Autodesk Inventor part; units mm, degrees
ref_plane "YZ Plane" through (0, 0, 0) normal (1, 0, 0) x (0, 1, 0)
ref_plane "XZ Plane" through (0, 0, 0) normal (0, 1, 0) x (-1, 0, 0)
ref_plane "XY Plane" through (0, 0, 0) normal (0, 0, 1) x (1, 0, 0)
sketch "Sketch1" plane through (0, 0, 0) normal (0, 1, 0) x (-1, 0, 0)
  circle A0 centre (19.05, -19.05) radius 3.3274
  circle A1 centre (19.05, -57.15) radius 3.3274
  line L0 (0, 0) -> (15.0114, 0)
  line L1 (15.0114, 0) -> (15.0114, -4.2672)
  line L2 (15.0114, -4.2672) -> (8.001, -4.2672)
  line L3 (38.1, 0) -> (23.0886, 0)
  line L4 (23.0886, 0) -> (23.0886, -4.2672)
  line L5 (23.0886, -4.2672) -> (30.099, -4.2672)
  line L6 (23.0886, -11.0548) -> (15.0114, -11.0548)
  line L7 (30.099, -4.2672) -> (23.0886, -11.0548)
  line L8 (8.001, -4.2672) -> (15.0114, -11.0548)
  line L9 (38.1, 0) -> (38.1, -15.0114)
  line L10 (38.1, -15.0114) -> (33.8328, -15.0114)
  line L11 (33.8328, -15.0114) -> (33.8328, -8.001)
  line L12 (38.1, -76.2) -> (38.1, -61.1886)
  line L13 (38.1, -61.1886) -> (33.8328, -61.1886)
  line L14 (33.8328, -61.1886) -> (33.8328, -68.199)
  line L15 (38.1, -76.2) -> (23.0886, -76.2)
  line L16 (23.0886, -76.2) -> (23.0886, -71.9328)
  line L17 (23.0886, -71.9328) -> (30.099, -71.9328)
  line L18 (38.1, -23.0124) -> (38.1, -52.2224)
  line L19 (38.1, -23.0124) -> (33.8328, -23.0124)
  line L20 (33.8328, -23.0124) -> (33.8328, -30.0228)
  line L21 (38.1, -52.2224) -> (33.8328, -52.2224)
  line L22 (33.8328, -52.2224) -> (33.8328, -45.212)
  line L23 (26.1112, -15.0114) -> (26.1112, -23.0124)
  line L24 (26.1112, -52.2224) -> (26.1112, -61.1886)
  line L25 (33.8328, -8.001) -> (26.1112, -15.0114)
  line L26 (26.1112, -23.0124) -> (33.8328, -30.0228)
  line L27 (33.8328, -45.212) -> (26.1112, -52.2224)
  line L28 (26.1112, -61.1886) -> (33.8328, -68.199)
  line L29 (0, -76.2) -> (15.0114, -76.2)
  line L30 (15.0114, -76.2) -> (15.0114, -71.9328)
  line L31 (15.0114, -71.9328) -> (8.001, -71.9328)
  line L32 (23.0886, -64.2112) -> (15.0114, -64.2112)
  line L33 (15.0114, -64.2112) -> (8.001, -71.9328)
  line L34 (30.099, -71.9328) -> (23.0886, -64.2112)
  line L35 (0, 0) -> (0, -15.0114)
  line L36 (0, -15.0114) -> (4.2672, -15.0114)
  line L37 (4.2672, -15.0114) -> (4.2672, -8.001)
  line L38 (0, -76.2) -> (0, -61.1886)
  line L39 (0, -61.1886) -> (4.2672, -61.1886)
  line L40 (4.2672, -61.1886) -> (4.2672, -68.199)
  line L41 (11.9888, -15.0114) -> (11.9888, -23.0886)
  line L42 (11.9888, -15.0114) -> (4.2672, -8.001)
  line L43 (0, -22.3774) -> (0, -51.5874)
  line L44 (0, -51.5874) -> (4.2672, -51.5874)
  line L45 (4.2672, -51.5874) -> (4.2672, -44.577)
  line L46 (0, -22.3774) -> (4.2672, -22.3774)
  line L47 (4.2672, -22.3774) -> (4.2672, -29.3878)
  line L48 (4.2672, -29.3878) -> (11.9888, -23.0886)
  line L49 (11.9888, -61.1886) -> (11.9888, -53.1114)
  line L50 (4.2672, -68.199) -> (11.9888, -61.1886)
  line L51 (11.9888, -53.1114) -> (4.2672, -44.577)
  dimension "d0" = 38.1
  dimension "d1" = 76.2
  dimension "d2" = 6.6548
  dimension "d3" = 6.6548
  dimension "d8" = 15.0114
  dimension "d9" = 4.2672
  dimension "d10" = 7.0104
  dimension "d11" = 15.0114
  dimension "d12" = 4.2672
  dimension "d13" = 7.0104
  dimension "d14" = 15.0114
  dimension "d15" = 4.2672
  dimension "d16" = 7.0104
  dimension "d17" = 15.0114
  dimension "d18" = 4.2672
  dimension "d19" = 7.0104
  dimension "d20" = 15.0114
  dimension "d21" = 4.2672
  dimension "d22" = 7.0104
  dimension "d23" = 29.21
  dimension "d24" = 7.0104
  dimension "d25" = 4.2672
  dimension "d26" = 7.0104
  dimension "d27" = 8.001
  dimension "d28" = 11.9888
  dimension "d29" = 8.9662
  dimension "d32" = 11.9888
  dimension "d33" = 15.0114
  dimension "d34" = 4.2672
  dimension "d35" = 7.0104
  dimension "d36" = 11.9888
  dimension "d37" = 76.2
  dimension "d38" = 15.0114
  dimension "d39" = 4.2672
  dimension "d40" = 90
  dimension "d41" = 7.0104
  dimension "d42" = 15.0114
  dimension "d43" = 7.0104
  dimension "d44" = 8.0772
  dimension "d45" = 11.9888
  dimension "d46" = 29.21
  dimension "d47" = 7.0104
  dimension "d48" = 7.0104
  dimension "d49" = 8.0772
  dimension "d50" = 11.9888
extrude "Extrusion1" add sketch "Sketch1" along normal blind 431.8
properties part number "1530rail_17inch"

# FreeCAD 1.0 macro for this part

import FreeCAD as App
import Part
import Sketcher

V = App.Vector
Q = App.Units.Quantity

doc = App.newDocument("Part")
body = doc.addObject("PartDesign::Body", "Body")

sketch1 = body.newObject("Sketcher::SketchObject", "Sketch")
sketch1.AttachmentSupport = (doc.getObject("XZ_Plane"), [""])
sketch1.MapMode = "FlatFace"
sketch1.addGeometry(Part.LineSegment(V(-15.0114, 0, 0), V(0, 0, 0)), False)
sketch1.addGeometry(Part.LineSegment(V(0, 0, 0), V(0, -15.0114, 0)), False)
sketch1.addGeometry(Part.LineSegment(V(0, -15.0114, 0), V(-4.2672, -15.0114, 0)), False)
sketch1.addGeometry(Part.LineSegment(V(-4.2672, -15.0114, 0), V(-4.2672, -8.001, 0)), False)
sketch1.addGeometry(Part.LineSegment(V(-4.2672, -8.001, 0), V(-11.9888, -15.0114, 0)), False)
sketch1.addGeometry(Part.LineSegment(V(-11.9888, -15.0114, 0), V(-11.9888, -23.0886, 0)), False)
sketch1.addGeometry(Part.LineSegment(V(-11.9888, -23.0886, 0), V(-4.2672, -29.3878, 0)), False)
sketch1.addGeometry(Part.LineSegment(V(-4.2672, -29.3878, 0), V(-4.2672, -22.3774, 0)), False)
sketch1.addGeometry(Part.LineSegment(V(-4.2672, -22.3774, 0), V(0, -22.3774, 0)), False)
sketch1.addGeometry(Part.LineSegment(V(0, -22.3774, 0), V(0, -51.5874, 0)), False)
sketch1.addGeometry(Part.LineSegment(V(0, -51.5874, 0), V(-4.2672, -51.5874, 0)), False)
sketch1.addGeometry(Part.LineSegment(V(-4.2672, -51.5874, 0), V(-4.2672, -44.577, 0)), False)
sketch1.addGeometry(Part.LineSegment(V(-4.2672, -44.577, 0), V(-11.9888, -53.1114, 0)), False)
sketch1.addGeometry(Part.LineSegment(V(-11.9888, -53.1114, 0), V(-11.9888, -61.1886, 0)), False)
sketch1.addGeometry(Part.LineSegment(V(-11.9888, -61.1886, 0), V(-4.2672, -68.199, 0)), False)
sketch1.addGeometry(Part.LineSegment(V(-4.2672, -68.199, 0), V(-4.2672, -61.1886, 0)), False)
sketch1.addGeometry(Part.LineSegment(V(-4.2672, -61.1886, 0), V(0, -61.1886, 0)), False)
sketch1.addGeometry(Part.LineSegment(V(0, -61.1886, 0), V(0, -76.2, 0)), False)
sketch1.addGeometry(Part.LineSegment(V(0, -76.2, 0), V(-15.0114, -76.2, 0)), False)
sketch1.addGeometry(Part.LineSegment(V(-15.0114, -76.2, 0), V(-15.0114, -71.9328, 0)), False)
sketch1.addGeometry(Part.LineSegment(V(-15.0114, -71.9328, 0), V(-8.001, -71.9328, 0)), False)
sketch1.addGeometry(Part.LineSegment(V(-8.001, -71.9328, 0), V(-15.0114, -64.2112, 0)), False)
sketch1.addGeometry(Part.LineSegment(V(-15.0114, -64.2112, 0), V(-23.0886, -64.2112, 0)), False)
sketch1.addGeometry(Part.LineSegment(V(-23.0886, -64.2112, 0), V(-30.099, -71.9328, 0)), False)
sketch1.addGeometry(Part.LineSegment(V(-30.099, -71.9328, 0), V(-23.0886, -71.9328, 0)), False)
sketch1.addGeometry(Part.LineSegment(V(-23.0886, -71.9328, 0), V(-23.0886, -76.2, 0)), False)
sketch1.addGeometry(Part.LineSegment(V(-23.0886, -76.2, 0), V(-38.1, -76.2, 0)), False)
sketch1.addGeometry(Part.LineSegment(V(-38.1, -76.2, 0), V(-38.1, -61.1886, 0)), False)
sketch1.addGeometry(Part.LineSegment(V(-38.1, -61.1886, 0), V(-33.8328, -61.1886, 0)), False)
sketch1.addGeometry(Part.LineSegment(V(-33.8328, -61.1886, 0), V(-33.8328, -68.199, 0)), False)
sketch1.addGeometry(Part.LineSegment(V(-33.8328, -68.199, 0), V(-26.1112, -61.1886, 0)), False)
sketch1.addGeometry(Part.LineSegment(V(-26.1112, -61.1886, 0), V(-26.1112, -52.2224, 0)), False)
sketch1.addGeometry(Part.LineSegment(V(-26.1112, -52.2224, 0), V(-33.8328, -45.212, 0)), False)
sketch1.addGeometry(Part.LineSegment(V(-33.8328, -45.212, 0), V(-33.8328, -52.2224, 0)), False)
sketch1.addGeometry(Part.LineSegment(V(-33.8328, -52.2224, 0), V(-38.1, -52.2224, 0)), False)
sketch1.addGeometry(Part.LineSegment(V(-38.1, -52.2224, 0), V(-38.1, -23.0124, 0)), False)
sketch1.addGeometry(Part.LineSegment(V(-38.1, -23.0124, 0), V(-33.8328, -23.0124, 0)), False)
sketch1.addGeometry(Part.LineSegment(V(-33.8328, -23.0124, 0), V(-33.8328, -30.0228, 0)), False)
sketch1.addGeometry(Part.LineSegment(V(-33.8328, -30.0228, 0), V(-26.1112, -23.0124, 0)), False)
sketch1.addGeometry(Part.LineSegment(V(-26.1112, -23.0124, 0), V(-26.1112, -15.0114, 0)), False)
sketch1.addGeometry(Part.LineSegment(V(-26.1112, -15.0114, 0), V(-33.8328, -8.001, 0)), False)
sketch1.addGeometry(Part.LineSegment(V(-33.8328, -8.001, 0), V(-33.8328, -15.0114, 0)), False)
sketch1.addGeometry(Part.LineSegment(V(-33.8328, -15.0114, 0), V(-38.1, -15.0114, 0)), False)
sketch1.addGeometry(Part.LineSegment(V(-38.1, -15.0114, 0), V(-38.1, 0, 0)), False)
sketch1.addGeometry(Part.LineSegment(V(-38.1, 0, 0), V(-23.0886, 0, 0)), False)
sketch1.addGeometry(Part.LineSegment(V(-23.0886, 0, 0), V(-23.0886, -4.2672, 0)), False)
sketch1.addGeometry(Part.LineSegment(V(-23.0886, -4.2672, 0), V(-30.099, -4.2672, 0)), False)
sketch1.addGeometry(Part.LineSegment(V(-30.099, -4.2672, 0), V(-23.0886, -11.0548, 0)), False)
sketch1.addGeometry(Part.LineSegment(V(-23.0886, -11.0548, 0), V(-15.0114, -11.0548, 0)), False)
sketch1.addGeometry(Part.LineSegment(V(-15.0114, -11.0548, 0), V(-8.001, -4.2672, 0)), False)
sketch1.addGeometry(Part.LineSegment(V(-8.001, -4.2672, 0), V(-15.0114, -4.2672, 0)), False)
sketch1.addGeometry(Part.LineSegment(V(-15.0114, -4.2672, 0), V(-15.0114, 0, 0)), False)
sketch1.addGeometry(Part.Circle(V(-19.05, -57.15, 0), V(0, 0, 1), 3.3274), False)
sketch1.addGeometry(Part.Circle(V(-19.05, -19.05, 0), V(0, 0, 1), 3.3274), False)
sketch1.addConstraint(Sketcher.Constraint("Coincident", 0, 2, 1, 1))
sketch1.addConstraint(Sketcher.Constraint("Coincident", 1, 2, 2, 1))
sketch1.addConstraint(Sketcher.Constraint("Coincident", 2, 2, 3, 1))
sketch1.addConstraint(Sketcher.Constraint("Coincident", 3, 2, 4, 1))
sketch1.addConstraint(Sketcher.Constraint("Coincident", 4, 2, 5, 1))
sketch1.addConstraint(Sketcher.Constraint("Coincident", 5, 2, 6, 1))
sketch1.addConstraint(Sketcher.Constraint("Coincident", 6, 2, 7, 1))
sketch1.addConstraint(Sketcher.Constraint("Coincident", 7, 2, 8, 1))
sketch1.addConstraint(Sketcher.Constraint("Coincident", 8, 2, 9, 1))
sketch1.addConstraint(Sketcher.Constraint("Coincident", 9, 2, 10, 1))
sketch1.addConstraint(Sketcher.Constraint("Coincident", 10, 2, 11, 1))
sketch1.addConstraint(Sketcher.Constraint("Coincident", 11, 2, 12, 1))
sketch1.addConstraint(Sketcher.Constraint("Coincident", 12, 2, 13, 1))
sketch1.addConstraint(Sketcher.Constraint("Coincident", 13, 2, 14, 1))
sketch1.addConstraint(Sketcher.Constraint("Coincident", 14, 2, 15, 1))
sketch1.addConstraint(Sketcher.Constraint("Coincident", 15, 2, 16, 1))
sketch1.addConstraint(Sketcher.Constraint("Coincident", 16, 2, 17, 1))
sketch1.addConstraint(Sketcher.Constraint("Coincident", 17, 2, 18, 1))
sketch1.addConstraint(Sketcher.Constraint("Coincident", 18, 2, 19, 1))
sketch1.addConstraint(Sketcher.Constraint("Coincident", 19, 2, 20, 1))
sketch1.addConstraint(Sketcher.Constraint("Coincident", 20, 2, 21, 1))
sketch1.addConstraint(Sketcher.Constraint("Coincident", 21, 2, 22, 1))
sketch1.addConstraint(Sketcher.Constraint("Coincident", 22, 2, 23, 1))
sketch1.addConstraint(Sketcher.Constraint("Coincident", 23, 2, 24, 1))
sketch1.addConstraint(Sketcher.Constraint("Coincident", 24, 2, 25, 1))
sketch1.addConstraint(Sketcher.Constraint("Coincident", 25, 2, 26, 1))
sketch1.addConstraint(Sketcher.Constraint("Coincident", 26, 2, 27, 1))
sketch1.addConstraint(Sketcher.Constraint("Coincident", 27, 2, 28, 1))
sketch1.addConstraint(Sketcher.Constraint("Coincident", 28, 2, 29, 1))
sketch1.addConstraint(Sketcher.Constraint("Coincident", 29, 2, 30, 1))
sketch1.addConstraint(Sketcher.Constraint("Coincident", 30, 2, 31, 1))
sketch1.addConstraint(Sketcher.Constraint("Coincident", 31, 2, 32, 1))
sketch1.addConstraint(Sketcher.Constraint("Coincident", 32, 2, 33, 1))
sketch1.addConstraint(Sketcher.Constraint("Coincident", 33, 2, 34, 1))
sketch1.addConstraint(Sketcher.Constraint("Coincident", 34, 2, 35, 1))
sketch1.addConstraint(Sketcher.Constraint("Coincident", 35, 2, 36, 1))
sketch1.addConstraint(Sketcher.Constraint("Coincident", 36, 2, 37, 1))
sketch1.addConstraint(Sketcher.Constraint("Coincident", 37, 2, 38, 1))
sketch1.addConstraint(Sketcher.Constraint("Coincident", 38, 2, 39, 1))
sketch1.addConstraint(Sketcher.Constraint("Coincident", 39, 2, 40, 1))
sketch1.addConstraint(Sketcher.Constraint("Coincident", 40, 2, 41, 1))
sketch1.addConstraint(Sketcher.Constraint("Coincident", 41, 2, 42, 1))
sketch1.addConstraint(Sketcher.Constraint("Coincident", 42, 2, 43, 1))
sketch1.addConstraint(Sketcher.Constraint("Coincident", 43, 2, 44, 1))
sketch1.addConstraint(Sketcher.Constraint("Coincident", 44, 2, 45, 1))
sketch1.addConstraint(Sketcher.Constraint("Coincident", 45, 2, 46, 1))
sketch1.addConstraint(Sketcher.Constraint("Coincident", 46, 2, 47, 1))
sketch1.addConstraint(Sketcher.Constraint("Coincident", 47, 2, 48, 1))
sketch1.addConstraint(Sketcher.Constraint("Coincident", 48, 2, 49, 1))
sketch1.addConstraint(Sketcher.Constraint("Coincident", 49, 2, 50, 1))
sketch1.addConstraint(Sketcher.Constraint("Coincident", 50, 2, 51, 1))
sketch1.addConstraint(Sketcher.Constraint("Coincident", 51, 2, 0, 1))
sketch1.addConstraint(Sketcher.Constraint("Horizontal", 0))
sketch1.addConstraint(Sketcher.Constraint("Vertical", 1))
sketch1.addConstraint(Sketcher.Constraint("Horizontal", 2))
sketch1.addConstraint(Sketcher.Constraint("Vertical", 3))
sketch1.addConstraint(Sketcher.Constraint("Vertical", 5))
sketch1.addConstraint(Sketcher.Constraint("Vertical", 7))
sketch1.addConstraint(Sketcher.Constraint("Horizontal", 8))
sketch1.addConstraint(Sketcher.Constraint("Vertical", 9))
sketch1.addConstraint(Sketcher.Constraint("Horizontal", 10))
sketch1.addConstraint(Sketcher.Constraint("Vertical", 11))
sketch1.addConstraint(Sketcher.Constraint("Vertical", 13))
sketch1.addConstraint(Sketcher.Constraint("Vertical", 15))
sketch1.addConstraint(Sketcher.Constraint("Horizontal", 16))
sketch1.addConstraint(Sketcher.Constraint("Vertical", 17))
sketch1.addConstraint(Sketcher.Constraint("Horizontal", 18))
sketch1.addConstraint(Sketcher.Constraint("Vertical", 19))
sketch1.addConstraint(Sketcher.Constraint("Horizontal", 20))
sketch1.addConstraint(Sketcher.Constraint("Horizontal", 22))
sketch1.addConstraint(Sketcher.Constraint("Horizontal", 24))
sketch1.addConstraint(Sketcher.Constraint("Vertical", 25))
sketch1.addConstraint(Sketcher.Constraint("Horizontal", 26))
sketch1.addConstraint(Sketcher.Constraint("Vertical", 27))
sketch1.addConstraint(Sketcher.Constraint("Horizontal", 28))
sketch1.addConstraint(Sketcher.Constraint("Vertical", 29))
sketch1.addConstraint(Sketcher.Constraint("Vertical", 31))
sketch1.addConstraint(Sketcher.Constraint("Vertical", 33))
sketch1.addConstraint(Sketcher.Constraint("Horizontal", 34))
sketch1.addConstraint(Sketcher.Constraint("Vertical", 35))
sketch1.addConstraint(Sketcher.Constraint("Horizontal", 36))
sketch1.addConstraint(Sketcher.Constraint("Vertical", 37))
sketch1.addConstraint(Sketcher.Constraint("Vertical", 39))
sketch1.addConstraint(Sketcher.Constraint("Vertical", 41))
sketch1.addConstraint(Sketcher.Constraint("Horizontal", 42))
sketch1.addConstraint(Sketcher.Constraint("Vertical", 43))
sketch1.addConstraint(Sketcher.Constraint("Horizontal", 44))
sketch1.addConstraint(Sketcher.Constraint("Vertical", 45))
sketch1.addConstraint(Sketcher.Constraint("Horizontal", 46))
sketch1.addConstraint(Sketcher.Constraint("Horizontal", 48))
sketch1.addConstraint(Sketcher.Constraint("Horizontal", 50))
sketch1.addConstraint(Sketcher.Constraint("Vertical", 51))
sketch1.addConstraint(Sketcher.Constraint("Coincident", 0, 2, -1, 1))
sketch1.addConstraint(Sketcher.Constraint("Equal", 52, 53))
sketch1.addConstraint(Sketcher.Constraint("PointOnObject", 8, 2, -2))
sketch1.addConstraint(Sketcher.Constraint("PointOnObject", 16, 2, -2))
sketch1.addConstraint(Sketcher.Constraint("PointOnObject", 43, 2, -1))
sketch1.addConstraint(Sketcher.Constraint("Perpendicular", 4, 21))
sketch1.addConstraint(Sketcher.Constraint("Perpendicular", 14, 23))
sketch1.addConstraint(Sketcher.Constraint("Perpendicular", 21, 30))
sketch1.addConstraint(Sketcher.Constraint("Perpendicular", 23, 32))
sketch1.addConstraint(Sketcher.Constraint("Parallel", 30, 38))
sketch1.addConstraint(Sketcher.Constraint("Parallel", 32, 40))
sketch1.addConstraint(Sketcher.Constraint("Horizontal", 2, 2, 4, 2))
sketch1.addConstraint(Sketcher.Constraint("Horizontal", 13, 2, 15, 2))
sketch1.addConstraint(Sketcher.Constraint("Horizontal", 20, 2, 23, 2))
sketch1.addConstraint(Sketcher.Constraint("Horizontal", 18, 2, 25, 2))
sketch1.addConstraint(Sketcher.Constraint("Horizontal", 16, 2, 27, 2))
sketch1.addConstraint(Sketcher.Constraint("Horizontal", 14, 2, 29, 2))
sketch1.addConstraint(Sketcher.Constraint("Horizontal", 28, 2, 30, 2))
sketch1.addConstraint(Sketcher.Constraint("Horizontal", 31, 2, 33, 2))
sketch1.addConstraint(Sketcher.Constraint("Horizontal", 36, 2, 38, 2))
sketch1.addConstraint(Sketcher.Constraint("Horizontal", 4, 2, 39, 2))
sketch1.addConstraint(Sketcher.Constraint("Horizontal", 3, 2, 40, 2))
sketch1.addConstraint(Sketcher.Constraint("Horizontal", 39, 2, 41, 2))
sketch1.addConstraint(Sketcher.Constraint("Horizontal", 46, 2, 49, 2))
sketch1.addConstraint(Sketcher.Constraint("Vertical", 52, 3, 53, 3))
sketch1.addConstraint(Sketcher.Constraint("Vertical", 3, 2, 6, 2))
sketch1.addConstraint(Sketcher.Constraint("Vertical", 7, 2, 10, 2))
sketch1.addConstraint(Sketcher.Constraint("Vertical", 5, 2, 12, 2))
sketch1.addConstraint(Sketcher.Constraint("Vertical", 11, 2, 14, 2))
sketch1.addConstraint(Sketcher.Constraint("Vertical", 19, 2, 21, 2))
sketch1.addConstraint(Sketcher.Constraint("Vertical", 22, 2, 24, 2))
sketch1.addConstraint(Sketcher.Constraint("Vertical", 29, 2, 32, 2))
sketch1.addConstraint(Sketcher.Constraint("Vertical", 27, 2, 34, 2))
sketch1.addConstraint(Sketcher.Constraint("Vertical", 33, 2, 36, 2))
sketch1.addConstraint(Sketcher.Constraint("Vertical", 31, 2, 38, 2))
sketch1.addConstraint(Sketcher.Constraint("Vertical", 37, 2, 40, 2))
sketch1.addConstraint(Sketcher.Constraint("Vertical", 35, 2, 42, 2))
sketch1.addConstraint(Sketcher.Constraint("Vertical", 25, 2, 44, 2))
sketch1.addConstraint(Sketcher.Constraint("Vertical", 23, 2, 46, 2))
sketch1.addConstraint(Sketcher.Constraint("Vertical", 45, 2, 47, 2))
sketch1.addConstraint(Sketcher.Constraint("Vertical", 21, 2, 48, 2))
sketch1.addConstraint(Sketcher.Constraint("Vertical", 20, 2, 49, 2))
sketch1.addConstraint(Sketcher.Constraint("Vertical", 48, 2, 50, 2))
sketch1.addConstraint(Sketcher.Constraint("Equal", 18, 26))
sketch1.addConstraint(Sketcher.Constraint("Equal", 16, 28))
sketch1.addConstraint(Sketcher.Constraint("Equal", 44, 1))
sketch1.addConstraint(Sketcher.Constraint("Equal", 50, 3))
sketch1.addConstraint(Sketcher.Constraint("Equal", 48, 5))
sketch1.addConstraint(Sketcher.Constraint("Equal", 3, 7))
sketch1.addConstraint(Sketcher.Constraint("Equal", 7, 11))
sketch1.addConstraint(Sketcher.Constraint("Equal", 5, 13))
sketch1.addConstraint(Sketcher.Constraint("Equal", 1, 17))
sketch1.addConstraint(Sketcher.Constraint("Equal", 42, 19))
sketch1.addConstraint(Sketcher.Constraint("Equal", 9, 35))
sketch1.addConstraint(Sketcher.Constraint("Equal", 25, 45))
sketch1.addConstraint(Sketcher.Constraint("Diameter", 52, Q("0.262 in")))
sketch1.addConstraint(Sketcher.Constraint("DistanceY", 17, 2, -1, 1, Q("3 in")))
sketch1.addConstraint(Sketcher.Constraint("DistanceY", 9, 2, 9, 1, Q("1.15 in")))
sketch1.addConstraint(Sketcher.Constraint("DistanceX", 26, 2, -1, 1, Q("1.5 in")))
sketch1.addConstraint(Sketcher.Constraint("DistanceY", 52, 3, 53, 3, Q("1.5 in")))
sketch1.addConstraint(Sketcher.Constraint("DistanceX", 0, 1, 0, 2, Q("0.591 in")))
sketch1.addConstraint(Sketcher.Constraint("DistanceX", 2, 2, 2, 1, Q("0.168 in")))
sketch1.addConstraint(Sketcher.Constraint("DistanceX", 20, 1, 20, 2, Q("0.276 in")))
sketch1.addConstraint(Sketcher.Constraint("DistanceY", 31, 1, 31, 2, Q("0.353 in")))
sketch1.addConstraint(Sketcher.Constraint("DistanceX", 4, 2, -1, 1, Q("0.472 in")))
sketch1.addConstraint(Sketcher.Constraint("DistanceX", 52, 3, -1, 1, Q("0.75 in")))
sketch1.addConstraint(Sketcher.Constraint("DistanceY", 52, 3, -1, 1, Q("2.25 in")))
sketch1.addConstraint(Sketcher.Constraint("DistanceY", 7, 2, 2, 2, Q("0.29 in")))
sketch1.addConstraint(Sketcher.Constraint("Distance", 47, Q("9.758 mm")))
pad1 = body.newObject("PartDesign::Pad", "Pad")
pad1.Profile = sketch1
pad1.Length = Q("17 in")
pad1.Reversed = True

doc.recompute()
